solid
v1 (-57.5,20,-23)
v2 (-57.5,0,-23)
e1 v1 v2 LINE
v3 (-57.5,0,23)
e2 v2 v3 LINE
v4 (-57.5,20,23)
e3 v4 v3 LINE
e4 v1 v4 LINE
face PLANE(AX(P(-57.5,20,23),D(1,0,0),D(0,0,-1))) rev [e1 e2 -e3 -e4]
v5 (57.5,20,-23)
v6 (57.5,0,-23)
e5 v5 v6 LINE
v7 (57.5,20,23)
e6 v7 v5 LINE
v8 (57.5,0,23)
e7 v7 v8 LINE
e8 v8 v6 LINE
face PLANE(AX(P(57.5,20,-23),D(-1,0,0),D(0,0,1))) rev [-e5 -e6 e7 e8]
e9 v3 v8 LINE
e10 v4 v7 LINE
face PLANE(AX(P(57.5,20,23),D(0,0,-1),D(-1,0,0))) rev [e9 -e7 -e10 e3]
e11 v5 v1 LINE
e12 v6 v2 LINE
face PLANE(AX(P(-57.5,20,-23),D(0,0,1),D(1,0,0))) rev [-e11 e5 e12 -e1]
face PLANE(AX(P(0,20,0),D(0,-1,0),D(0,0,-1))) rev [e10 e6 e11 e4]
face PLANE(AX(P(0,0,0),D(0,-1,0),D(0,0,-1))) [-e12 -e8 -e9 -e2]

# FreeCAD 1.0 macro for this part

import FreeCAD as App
import Part
import Sketcher


def add_polygon(sketch, points):
    """Adds a closed chain of lines whose ends are joined by coincident constraints."""
    first, n = sketch.GeometryCount, len(points)
    for a, b in zip(points, points[1:] + points[:1]):
        sketch.addGeometry(Part.LineSegment(App.Vector(*a, 0), App.Vector(*b, 0)), False)
    for i in range(n):
        sketch.addConstraint(Sketcher.Constraint("Coincident", first + i, 2, first + (i + 1) % n, 1))

doc = App.newDocument("Part")
body = doc.addObject("PartDesign::Body", "Body")

# Sketch on XZ plane
sketch1 = body.newObject("Sketcher::SketchObject", "Sketch")
sketch1.AttachmentSupport = (doc.getObject("XZ_Plane"), [""])
sketch1.MapMode = "FlatFace"
add_polygon(sketch1, [(-58, -23), (-58, 23), (58, 23), (58, -23)])  # lines 0-3
sketch1.addConstraint(Sketcher.Constraint("Vertical", 0))
sketch1.addConstraint(Sketcher.Constraint("Horizontal", 1))
sketch1.addConstraint(Sketcher.Constraint("Vertical", 2))
sketch1.addConstraint(Sketcher.Constraint("Horizontal", 3))
sketch1.addConstraint(Sketcher.Constraint("Symmetric", 0, 2, 2, 2, -1, 1))
sketch1.addConstraint(Sketcher.Constraint("DistanceX", 1, 1, 1, 2, 115.0))
sketch1.addConstraint(Sketcher.Constraint("DistanceY", 0, 1, 0, 2, 46.0))
pad1 = body.newObject("PartDesign::Pad", "Pad")
pad1.Profile = sketch1
pad1.Length = 20
pad1.Reversed = True

doc.recompute()
